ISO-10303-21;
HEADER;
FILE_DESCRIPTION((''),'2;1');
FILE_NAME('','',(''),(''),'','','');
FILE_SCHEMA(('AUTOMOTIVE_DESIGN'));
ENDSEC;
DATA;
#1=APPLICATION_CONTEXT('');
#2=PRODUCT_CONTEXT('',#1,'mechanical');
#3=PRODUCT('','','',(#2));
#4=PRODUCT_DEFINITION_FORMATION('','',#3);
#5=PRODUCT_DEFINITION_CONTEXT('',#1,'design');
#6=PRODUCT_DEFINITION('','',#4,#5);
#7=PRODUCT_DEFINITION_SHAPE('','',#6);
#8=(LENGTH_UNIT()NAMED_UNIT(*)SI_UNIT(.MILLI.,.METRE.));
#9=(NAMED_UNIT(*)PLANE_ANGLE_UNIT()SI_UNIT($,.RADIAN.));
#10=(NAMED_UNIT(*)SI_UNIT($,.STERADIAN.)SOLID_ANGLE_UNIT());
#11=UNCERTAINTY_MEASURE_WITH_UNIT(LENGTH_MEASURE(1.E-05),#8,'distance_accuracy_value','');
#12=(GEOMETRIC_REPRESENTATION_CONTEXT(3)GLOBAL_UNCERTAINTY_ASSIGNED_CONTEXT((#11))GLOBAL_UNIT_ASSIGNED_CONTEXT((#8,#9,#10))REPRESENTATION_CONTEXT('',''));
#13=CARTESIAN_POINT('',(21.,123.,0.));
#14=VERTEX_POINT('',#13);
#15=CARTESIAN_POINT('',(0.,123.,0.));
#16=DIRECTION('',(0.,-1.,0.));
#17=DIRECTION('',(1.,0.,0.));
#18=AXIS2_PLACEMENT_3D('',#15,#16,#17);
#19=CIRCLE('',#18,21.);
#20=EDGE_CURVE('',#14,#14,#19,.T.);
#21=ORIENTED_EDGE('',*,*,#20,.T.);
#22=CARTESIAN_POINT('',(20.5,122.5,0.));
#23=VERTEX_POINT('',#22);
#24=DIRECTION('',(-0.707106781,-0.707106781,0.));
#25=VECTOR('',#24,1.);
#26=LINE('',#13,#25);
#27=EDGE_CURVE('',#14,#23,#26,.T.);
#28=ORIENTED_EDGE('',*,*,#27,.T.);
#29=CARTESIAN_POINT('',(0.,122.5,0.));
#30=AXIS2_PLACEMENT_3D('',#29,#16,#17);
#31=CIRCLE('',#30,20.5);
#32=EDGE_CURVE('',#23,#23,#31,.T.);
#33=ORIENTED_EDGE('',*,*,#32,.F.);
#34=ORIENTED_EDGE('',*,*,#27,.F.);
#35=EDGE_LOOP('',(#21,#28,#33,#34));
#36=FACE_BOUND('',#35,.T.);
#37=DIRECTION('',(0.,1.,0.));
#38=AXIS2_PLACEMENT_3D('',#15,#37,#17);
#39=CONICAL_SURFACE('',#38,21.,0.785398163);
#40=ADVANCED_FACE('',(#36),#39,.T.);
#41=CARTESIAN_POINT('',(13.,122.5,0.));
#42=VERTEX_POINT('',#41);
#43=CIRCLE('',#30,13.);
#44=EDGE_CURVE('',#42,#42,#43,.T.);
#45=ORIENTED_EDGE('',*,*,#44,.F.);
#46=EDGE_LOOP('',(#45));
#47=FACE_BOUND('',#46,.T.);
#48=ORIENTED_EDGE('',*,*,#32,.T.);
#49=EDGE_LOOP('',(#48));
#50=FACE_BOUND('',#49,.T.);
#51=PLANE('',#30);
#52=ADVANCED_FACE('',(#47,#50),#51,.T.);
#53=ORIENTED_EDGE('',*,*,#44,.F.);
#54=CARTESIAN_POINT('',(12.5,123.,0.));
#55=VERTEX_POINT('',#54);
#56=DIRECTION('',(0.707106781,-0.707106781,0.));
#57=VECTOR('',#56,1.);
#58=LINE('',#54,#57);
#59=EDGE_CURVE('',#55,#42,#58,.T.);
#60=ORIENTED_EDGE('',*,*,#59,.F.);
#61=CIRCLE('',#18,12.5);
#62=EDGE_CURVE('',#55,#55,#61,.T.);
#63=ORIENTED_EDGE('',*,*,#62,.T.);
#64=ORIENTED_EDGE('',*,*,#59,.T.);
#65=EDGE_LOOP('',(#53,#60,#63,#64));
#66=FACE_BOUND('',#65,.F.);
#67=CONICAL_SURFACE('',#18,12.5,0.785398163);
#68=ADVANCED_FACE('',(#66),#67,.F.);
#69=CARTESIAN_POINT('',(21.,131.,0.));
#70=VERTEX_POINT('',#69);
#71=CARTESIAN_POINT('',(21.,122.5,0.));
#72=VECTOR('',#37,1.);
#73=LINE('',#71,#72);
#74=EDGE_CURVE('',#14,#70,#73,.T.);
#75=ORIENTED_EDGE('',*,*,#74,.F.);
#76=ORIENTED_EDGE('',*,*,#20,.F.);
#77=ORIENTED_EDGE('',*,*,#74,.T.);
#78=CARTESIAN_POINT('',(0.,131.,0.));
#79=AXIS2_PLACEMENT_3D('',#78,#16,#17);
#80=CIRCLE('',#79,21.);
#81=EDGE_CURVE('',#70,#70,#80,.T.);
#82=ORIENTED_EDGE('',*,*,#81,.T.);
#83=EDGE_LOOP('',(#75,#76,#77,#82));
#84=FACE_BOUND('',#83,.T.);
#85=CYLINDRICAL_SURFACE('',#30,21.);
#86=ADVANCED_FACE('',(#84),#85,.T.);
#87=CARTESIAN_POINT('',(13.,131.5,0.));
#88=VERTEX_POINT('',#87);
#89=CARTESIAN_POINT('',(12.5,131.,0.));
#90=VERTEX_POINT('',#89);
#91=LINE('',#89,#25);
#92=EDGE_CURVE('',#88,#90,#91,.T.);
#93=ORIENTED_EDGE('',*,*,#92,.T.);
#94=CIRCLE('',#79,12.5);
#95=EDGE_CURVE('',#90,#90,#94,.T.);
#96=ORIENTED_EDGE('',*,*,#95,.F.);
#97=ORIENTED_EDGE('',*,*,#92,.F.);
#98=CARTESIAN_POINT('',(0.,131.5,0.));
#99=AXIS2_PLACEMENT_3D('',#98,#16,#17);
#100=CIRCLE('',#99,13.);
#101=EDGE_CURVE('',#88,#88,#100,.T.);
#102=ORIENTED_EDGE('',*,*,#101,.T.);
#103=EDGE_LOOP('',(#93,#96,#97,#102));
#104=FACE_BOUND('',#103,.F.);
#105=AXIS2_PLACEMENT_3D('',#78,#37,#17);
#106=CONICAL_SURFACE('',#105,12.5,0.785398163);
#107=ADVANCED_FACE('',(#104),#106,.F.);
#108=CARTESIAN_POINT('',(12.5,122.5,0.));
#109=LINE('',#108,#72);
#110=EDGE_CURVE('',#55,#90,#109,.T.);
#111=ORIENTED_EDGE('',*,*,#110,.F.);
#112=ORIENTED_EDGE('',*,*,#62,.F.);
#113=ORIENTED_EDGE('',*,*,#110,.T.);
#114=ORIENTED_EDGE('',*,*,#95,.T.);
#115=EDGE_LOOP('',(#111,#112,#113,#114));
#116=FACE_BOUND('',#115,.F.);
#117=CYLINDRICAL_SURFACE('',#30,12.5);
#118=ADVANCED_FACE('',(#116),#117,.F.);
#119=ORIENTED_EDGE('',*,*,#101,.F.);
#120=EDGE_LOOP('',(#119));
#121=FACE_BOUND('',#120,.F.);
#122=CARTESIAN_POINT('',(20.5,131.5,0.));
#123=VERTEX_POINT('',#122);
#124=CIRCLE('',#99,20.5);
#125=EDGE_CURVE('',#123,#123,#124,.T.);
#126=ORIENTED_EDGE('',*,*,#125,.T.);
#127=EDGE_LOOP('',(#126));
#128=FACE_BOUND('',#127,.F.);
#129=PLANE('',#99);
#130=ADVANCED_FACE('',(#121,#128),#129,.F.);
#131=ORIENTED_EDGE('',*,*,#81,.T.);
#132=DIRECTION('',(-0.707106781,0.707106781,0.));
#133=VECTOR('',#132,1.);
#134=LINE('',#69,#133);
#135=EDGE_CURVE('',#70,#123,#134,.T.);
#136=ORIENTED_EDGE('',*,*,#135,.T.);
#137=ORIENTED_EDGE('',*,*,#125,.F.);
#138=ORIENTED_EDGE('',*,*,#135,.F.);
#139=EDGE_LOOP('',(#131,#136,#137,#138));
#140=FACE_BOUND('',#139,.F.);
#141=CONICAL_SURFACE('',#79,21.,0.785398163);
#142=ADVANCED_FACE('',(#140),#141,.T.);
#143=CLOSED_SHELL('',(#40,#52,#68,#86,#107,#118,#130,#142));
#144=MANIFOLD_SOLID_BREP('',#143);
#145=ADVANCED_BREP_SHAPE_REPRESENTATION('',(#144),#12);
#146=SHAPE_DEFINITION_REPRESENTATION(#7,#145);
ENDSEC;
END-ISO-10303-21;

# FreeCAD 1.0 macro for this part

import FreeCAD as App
import Part
import Sketcher

V = App.Vector
Q = App.Units.Quantity


def edges_at(feature, points):
    """Names of the edges that pass closest to the given points."""
    edges = feature.Shape.Edges
    near = lambda p: min(range(len(edges)), key=lambda i: edges[i].distToShape(Part.Vertex(*p))[0])
    return sorted({f"Edge{near(p) + 1}" for p in points})

doc = App.newDocument("Part")
body = doc.addObject("PartDesign::Body", "Body")

sketch1 = doc.addObject("Sketcher::SketchObject", "Sketch")
body.addObject(sketch1)
sketch1.AttachmentSupport = (doc.XZ_Plane, [""])
sketch1.MapMode = "FlatFace"
sketch1.AttachmentOffset = App.Placement(V(0, 0, -122.5), App.Rotation())
sketch1.addGeometry([
    Part.Circle(V(0, 0, 0), V(0, 0, 1), 21),
    Part.Circle(V(0, 0, 0), V(0, 0, 1), 12),
], False)
sketch1.addConstraint([
    Sketcher.Constraint("Coincident", 0, 3, -1, 1),
    Sketcher.Constraint("Coincident", 1, 3, -1, 1),
    Sketcher.Constraint("Diameter", 0, Q("42 mm")),
    Sketcher.Constraint("Diameter", 1, Q("25 mm")),
])
pad1 = doc.addObject("PartDesign::Pad", "Pad")
body.addObject(pad1)
pad1.Profile = sketch1
pad1.Length = 9
pad1.Reversed = True
doc.recompute()

chamfer = doc.addObject("PartDesign::Chamfer", "Chamfer")
body.addObject(chamfer)
chamfer.Base = (pad1, edges_at(pad1, [(-21, 122.5, 0), (-12.5, 122.5, 0)]))
chamfer.Size = 0.5
doc.recompute()

chamfer2 = doc.addObject("PartDesign::Chamfer", "Chamfer001")
body.addObject(chamfer2)
chamfer2.Base = (chamfer, edges_at(chamfer, [(-21, 131.5, 0), (-12.5, 131.5, 0)]))
chamfer2.Size = 0.5

doc.recompute()
